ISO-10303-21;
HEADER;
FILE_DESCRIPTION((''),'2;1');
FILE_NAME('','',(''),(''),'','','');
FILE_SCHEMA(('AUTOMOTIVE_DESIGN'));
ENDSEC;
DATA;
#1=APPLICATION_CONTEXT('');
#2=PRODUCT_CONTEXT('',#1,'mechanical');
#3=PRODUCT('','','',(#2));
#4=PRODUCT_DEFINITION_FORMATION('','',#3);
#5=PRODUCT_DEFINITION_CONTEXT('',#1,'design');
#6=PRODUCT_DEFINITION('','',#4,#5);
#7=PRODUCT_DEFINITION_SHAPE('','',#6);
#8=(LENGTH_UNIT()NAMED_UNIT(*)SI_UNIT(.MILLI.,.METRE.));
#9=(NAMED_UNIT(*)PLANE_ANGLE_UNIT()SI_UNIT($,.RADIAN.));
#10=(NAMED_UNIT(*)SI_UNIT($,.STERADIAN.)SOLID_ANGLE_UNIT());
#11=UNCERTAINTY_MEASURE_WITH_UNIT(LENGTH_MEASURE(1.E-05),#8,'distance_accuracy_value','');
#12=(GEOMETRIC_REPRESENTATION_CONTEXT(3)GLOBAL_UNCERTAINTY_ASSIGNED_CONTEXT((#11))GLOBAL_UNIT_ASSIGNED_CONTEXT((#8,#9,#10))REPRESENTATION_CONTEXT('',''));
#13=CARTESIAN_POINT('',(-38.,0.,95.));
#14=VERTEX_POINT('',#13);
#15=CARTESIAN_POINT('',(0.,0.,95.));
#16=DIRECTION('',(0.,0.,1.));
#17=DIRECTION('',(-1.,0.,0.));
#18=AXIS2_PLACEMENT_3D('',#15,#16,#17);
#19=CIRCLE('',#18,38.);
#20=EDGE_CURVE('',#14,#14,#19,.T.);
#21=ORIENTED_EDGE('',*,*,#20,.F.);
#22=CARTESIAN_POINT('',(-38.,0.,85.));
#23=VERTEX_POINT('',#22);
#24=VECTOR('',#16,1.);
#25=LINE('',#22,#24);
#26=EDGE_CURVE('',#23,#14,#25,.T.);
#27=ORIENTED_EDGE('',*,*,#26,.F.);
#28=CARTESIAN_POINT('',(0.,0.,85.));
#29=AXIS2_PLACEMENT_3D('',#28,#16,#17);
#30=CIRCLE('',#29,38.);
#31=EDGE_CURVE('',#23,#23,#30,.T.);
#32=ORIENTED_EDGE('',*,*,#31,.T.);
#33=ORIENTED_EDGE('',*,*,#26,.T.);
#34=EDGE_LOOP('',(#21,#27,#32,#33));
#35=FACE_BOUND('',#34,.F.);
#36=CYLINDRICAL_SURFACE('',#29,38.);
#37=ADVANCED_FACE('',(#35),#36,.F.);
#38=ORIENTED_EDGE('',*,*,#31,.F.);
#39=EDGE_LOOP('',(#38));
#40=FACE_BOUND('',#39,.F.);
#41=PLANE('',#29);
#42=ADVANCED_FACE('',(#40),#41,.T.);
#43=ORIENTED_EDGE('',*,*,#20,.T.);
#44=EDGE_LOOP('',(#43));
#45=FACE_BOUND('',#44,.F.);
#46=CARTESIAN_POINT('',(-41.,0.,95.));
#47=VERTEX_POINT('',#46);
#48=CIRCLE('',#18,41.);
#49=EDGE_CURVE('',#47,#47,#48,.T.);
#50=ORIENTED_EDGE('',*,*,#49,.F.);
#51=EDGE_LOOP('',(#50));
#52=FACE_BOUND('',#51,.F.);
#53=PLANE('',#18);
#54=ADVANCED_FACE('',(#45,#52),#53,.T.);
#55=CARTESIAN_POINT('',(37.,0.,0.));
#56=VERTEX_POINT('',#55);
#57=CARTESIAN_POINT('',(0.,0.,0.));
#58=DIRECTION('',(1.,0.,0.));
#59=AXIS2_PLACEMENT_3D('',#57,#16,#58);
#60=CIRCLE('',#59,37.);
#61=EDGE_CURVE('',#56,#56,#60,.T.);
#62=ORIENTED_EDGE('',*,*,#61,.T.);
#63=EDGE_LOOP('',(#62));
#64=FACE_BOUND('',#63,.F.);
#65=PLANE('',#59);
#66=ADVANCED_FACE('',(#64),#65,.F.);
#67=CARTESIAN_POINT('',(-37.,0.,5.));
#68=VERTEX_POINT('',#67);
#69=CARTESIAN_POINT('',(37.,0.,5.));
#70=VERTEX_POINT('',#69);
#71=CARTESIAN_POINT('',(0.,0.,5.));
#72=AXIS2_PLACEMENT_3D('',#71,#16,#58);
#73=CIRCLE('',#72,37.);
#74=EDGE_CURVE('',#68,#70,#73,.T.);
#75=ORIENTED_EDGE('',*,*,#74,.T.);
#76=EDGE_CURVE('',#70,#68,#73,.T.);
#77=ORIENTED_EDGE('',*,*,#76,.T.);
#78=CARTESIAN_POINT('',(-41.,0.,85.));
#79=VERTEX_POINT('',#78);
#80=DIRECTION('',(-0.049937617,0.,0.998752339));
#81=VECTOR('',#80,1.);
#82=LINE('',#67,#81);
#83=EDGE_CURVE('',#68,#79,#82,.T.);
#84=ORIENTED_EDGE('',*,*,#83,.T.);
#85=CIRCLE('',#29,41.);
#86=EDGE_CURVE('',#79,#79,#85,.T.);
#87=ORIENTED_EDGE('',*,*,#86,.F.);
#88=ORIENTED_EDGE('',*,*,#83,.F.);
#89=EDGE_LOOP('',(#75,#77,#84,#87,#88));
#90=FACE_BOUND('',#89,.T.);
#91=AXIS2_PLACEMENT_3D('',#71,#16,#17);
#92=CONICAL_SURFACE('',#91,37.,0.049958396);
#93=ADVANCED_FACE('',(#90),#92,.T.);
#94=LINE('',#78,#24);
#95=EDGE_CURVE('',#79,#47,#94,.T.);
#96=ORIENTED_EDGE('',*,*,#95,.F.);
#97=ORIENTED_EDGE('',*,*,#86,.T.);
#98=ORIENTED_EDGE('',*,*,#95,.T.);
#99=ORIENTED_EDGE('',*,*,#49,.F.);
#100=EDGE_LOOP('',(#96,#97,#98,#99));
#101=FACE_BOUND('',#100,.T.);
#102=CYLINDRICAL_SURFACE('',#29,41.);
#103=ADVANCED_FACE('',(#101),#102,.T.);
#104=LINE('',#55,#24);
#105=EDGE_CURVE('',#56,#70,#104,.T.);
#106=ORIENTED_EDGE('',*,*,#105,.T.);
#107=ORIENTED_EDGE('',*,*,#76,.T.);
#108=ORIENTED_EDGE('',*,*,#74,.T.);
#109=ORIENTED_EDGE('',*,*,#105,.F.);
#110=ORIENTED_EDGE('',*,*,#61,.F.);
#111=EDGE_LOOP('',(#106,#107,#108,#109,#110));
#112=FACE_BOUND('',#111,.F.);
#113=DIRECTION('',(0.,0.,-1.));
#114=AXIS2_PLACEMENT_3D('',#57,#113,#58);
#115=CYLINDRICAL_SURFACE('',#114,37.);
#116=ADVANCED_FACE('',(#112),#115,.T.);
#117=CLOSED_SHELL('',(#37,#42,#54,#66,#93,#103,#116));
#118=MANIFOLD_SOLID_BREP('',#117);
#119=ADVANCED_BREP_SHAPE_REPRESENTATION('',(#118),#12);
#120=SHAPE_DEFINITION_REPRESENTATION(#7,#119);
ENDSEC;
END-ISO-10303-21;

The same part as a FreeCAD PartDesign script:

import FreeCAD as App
import Part
import Sketcher

V = App.Vector
Q = App.Units.Quantity

doc = App.newDocument("Part")
body = doc.addObject("PartDesign::Body", "Body")

# Sketch on XY plane
sketch1 = body.newObject("Sketcher::SketchObject", "Sketch")
sketch1.AttachmentSupport = (doc.getObject("XY_Plane"), [""])
sketch1.MapMode = "FlatFace"
sketch1.addGeometry(Part.Circle(V(0, 0, 0), V(0, 0, 1), 37), False)
sketch1.addConstraint(Sketcher.Constraint("Coincident", 0, 3, -1, 1))
sketch1.addConstraint(Sketcher.Constraint("Diameter", 0, Q("74 mm")))
pad1 = body.newObject("PartDesign::Pad", "Pad")
pad1.Profile = sketch1
pad1.Length = 5

# Sketch on XZ plane
sketch2 = body.newObject("Sketcher::SketchObject", "Sketch001")
sketch2.AttachmentSupport = (doc.getObject("XZ_Plane"), [""])
sketch2.MapMode = "FlatFace"
sketch2.addGeometry(Part.LineSegment(V(-37, 5, 0), V(-41, 85, 0)), False)
sketch2.addGeometry(Part.LineSegment(V(-41, 85, 0), V(-41, 95, 0)), False)
sketch2.addGeometry(Part.LineSegment(V(-41, 95, 0), V(-38, 95, 0)), False)
sketch2.addGeometry(Part.LineSegment(V(-38, 95, 0), V(-38, 85, 0)), False)
sketch2.addGeometry(Part.LineSegment(V(-38, 85, 0), V(0, 85, 0)), False)
sketch2.addGeometry(Part.LineSegment(V(0, 85, 0), V(0, 5, 0)), False)
sketch2.addGeometry(Part.LineSegment(V(0, 5, 0), V(-37, 5, 0)), False)
sketch2.addConstraint(Sketcher.Constraint("Coincident", 0, 2, 1, 1))
sketch2.addConstraint(Sketcher.Constraint("Coincident", 1, 2, 2, 1))
sketch2.addConstraint(Sketcher.Constraint("Coincident", 2, 2, 3, 1))
sketch2.addConstraint(Sketcher.Constraint("Coincident", 3, 2, 4, 1))
sketch2.addConstraint(Sketcher.Constraint("Coincident", 4, 2, 5, 1))
sketch2.addConstraint(Sketcher.Constraint("Coincident", 5, 2, 6, 1))
sketch2.addConstraint(Sketcher.Constraint("Coincident", 6, 2, 0, 1))
sketch2.addConstraint(Sketcher.Constraint("Vertical", 1))
sketch2.addConstraint(Sketcher.Constraint("Horizontal", 2))
sketch2.addConstraint(Sketcher.Constraint("Vertical", 3))
sketch2.addConstraint(Sketcher.Constraint("Horizontal", 4))
sketch2.addConstraint(Sketcher.Constraint("Vertical", 5))
sketch2.addConstraint(Sketcher.Constraint("Horizontal", 6))
sketch2.addConstraint(Sketcher.Constraint("PointOnObject", 4, 2, -2))
sketch2.addConstraint(Sketcher.Constraint("Horizontal", 0, 2, 3, 2))
sketch2.addConstraint(Sketcher.Constraint("DistanceX", 4, 1, 4, 2, Q("38 mm")))
sketch2.addConstraint(Sketcher.Constraint("DistanceY", 1, 1, 1, 2, Q("10 mm")))
sketch2.addConstraint(Sketcher.Constraint("DistanceX", 0, 2, -1, 1, Q("41 mm")))
sketch2.addConstraint(Sketcher.Constraint("DistanceY", -1, 1, 0, 2, Q("85 mm")))
sketch2.addConstraint(Sketcher.Constraint("DistanceX", 6, 2, 6, 1, Q("37 mm")))
sketch2.addConstraint(Sketcher.Constraint("DistanceY", 5, 2, 5, 1, Q("80 mm")))
revolution = body.newObject("PartDesign::Revolution", "Revolution")
revolution.Profile = sketch2
revolution.ReferenceAxis = (sketch2, ["V_Axis"])
revolution.Angle = 360

doc.recompute()
